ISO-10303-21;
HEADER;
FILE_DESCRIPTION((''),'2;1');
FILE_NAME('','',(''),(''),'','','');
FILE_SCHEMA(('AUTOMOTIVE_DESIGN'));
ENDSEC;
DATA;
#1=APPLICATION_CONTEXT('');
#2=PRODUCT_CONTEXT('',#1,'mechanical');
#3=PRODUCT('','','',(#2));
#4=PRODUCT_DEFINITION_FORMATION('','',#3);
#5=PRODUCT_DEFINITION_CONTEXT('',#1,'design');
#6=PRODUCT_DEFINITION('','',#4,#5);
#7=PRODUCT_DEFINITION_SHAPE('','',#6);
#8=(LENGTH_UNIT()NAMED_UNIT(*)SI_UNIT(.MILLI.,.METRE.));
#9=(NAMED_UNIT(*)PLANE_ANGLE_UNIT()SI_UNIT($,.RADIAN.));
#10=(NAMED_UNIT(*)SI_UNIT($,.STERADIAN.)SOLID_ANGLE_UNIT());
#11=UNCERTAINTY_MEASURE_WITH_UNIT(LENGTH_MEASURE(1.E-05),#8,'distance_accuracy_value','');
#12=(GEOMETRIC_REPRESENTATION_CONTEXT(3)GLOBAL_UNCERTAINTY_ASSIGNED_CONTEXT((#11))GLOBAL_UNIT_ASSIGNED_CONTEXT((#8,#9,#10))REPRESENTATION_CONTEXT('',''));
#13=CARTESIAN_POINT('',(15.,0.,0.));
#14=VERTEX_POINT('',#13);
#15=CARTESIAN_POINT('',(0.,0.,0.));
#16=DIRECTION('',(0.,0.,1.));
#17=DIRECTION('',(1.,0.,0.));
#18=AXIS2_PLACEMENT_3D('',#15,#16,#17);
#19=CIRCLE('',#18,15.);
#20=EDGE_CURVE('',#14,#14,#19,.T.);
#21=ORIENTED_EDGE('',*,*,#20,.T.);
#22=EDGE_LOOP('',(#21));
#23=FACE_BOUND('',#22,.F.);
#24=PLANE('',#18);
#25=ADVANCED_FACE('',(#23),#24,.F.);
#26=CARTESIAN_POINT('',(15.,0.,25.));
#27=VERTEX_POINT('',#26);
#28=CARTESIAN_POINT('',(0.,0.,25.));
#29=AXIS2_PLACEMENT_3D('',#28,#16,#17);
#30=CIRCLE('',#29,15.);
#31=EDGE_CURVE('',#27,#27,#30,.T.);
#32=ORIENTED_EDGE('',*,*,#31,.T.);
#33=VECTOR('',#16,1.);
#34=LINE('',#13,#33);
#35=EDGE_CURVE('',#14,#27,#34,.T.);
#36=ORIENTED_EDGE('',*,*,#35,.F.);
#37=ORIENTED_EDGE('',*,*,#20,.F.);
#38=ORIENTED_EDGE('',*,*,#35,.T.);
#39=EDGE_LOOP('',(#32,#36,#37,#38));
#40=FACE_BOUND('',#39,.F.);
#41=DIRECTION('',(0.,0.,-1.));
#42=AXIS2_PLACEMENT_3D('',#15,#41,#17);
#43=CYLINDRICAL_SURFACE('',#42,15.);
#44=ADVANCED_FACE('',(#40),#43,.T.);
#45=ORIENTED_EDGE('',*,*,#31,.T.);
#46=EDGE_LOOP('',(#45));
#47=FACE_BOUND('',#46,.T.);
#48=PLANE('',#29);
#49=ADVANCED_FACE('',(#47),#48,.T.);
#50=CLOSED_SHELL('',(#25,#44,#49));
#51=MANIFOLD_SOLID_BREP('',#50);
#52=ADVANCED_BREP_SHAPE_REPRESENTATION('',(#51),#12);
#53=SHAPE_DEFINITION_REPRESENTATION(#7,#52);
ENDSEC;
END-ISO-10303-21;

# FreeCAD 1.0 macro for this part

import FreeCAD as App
import Part
import Sketcher

V = App.Vector

doc = App.newDocument("Part")
body = doc.addObject("PartDesign::Body", "Body")

sketch1 = body.newObject("Sketcher::SketchObject", "Sketch")
sketch1.AttachmentSupport = (doc.getObject("XY_Plane"), [""])
sketch1.MapMode = "FlatFace"
sketch1.addGeometry(Part.Circle(V(0, 0, 0), V(0, 0, 1), 15), False)
sketch1.addConstraint(Sketcher.Constraint("Coincident", 0, 3, -1, 1))
sketch1.addConstraint(Sketcher.Constraint("Diameter", 0, 30.0))
pad1 = body.newObject("PartDesign::Pad", "Pad")
pad1.Profile = sketch1
pad1.Length = 25

doc.recompute()
